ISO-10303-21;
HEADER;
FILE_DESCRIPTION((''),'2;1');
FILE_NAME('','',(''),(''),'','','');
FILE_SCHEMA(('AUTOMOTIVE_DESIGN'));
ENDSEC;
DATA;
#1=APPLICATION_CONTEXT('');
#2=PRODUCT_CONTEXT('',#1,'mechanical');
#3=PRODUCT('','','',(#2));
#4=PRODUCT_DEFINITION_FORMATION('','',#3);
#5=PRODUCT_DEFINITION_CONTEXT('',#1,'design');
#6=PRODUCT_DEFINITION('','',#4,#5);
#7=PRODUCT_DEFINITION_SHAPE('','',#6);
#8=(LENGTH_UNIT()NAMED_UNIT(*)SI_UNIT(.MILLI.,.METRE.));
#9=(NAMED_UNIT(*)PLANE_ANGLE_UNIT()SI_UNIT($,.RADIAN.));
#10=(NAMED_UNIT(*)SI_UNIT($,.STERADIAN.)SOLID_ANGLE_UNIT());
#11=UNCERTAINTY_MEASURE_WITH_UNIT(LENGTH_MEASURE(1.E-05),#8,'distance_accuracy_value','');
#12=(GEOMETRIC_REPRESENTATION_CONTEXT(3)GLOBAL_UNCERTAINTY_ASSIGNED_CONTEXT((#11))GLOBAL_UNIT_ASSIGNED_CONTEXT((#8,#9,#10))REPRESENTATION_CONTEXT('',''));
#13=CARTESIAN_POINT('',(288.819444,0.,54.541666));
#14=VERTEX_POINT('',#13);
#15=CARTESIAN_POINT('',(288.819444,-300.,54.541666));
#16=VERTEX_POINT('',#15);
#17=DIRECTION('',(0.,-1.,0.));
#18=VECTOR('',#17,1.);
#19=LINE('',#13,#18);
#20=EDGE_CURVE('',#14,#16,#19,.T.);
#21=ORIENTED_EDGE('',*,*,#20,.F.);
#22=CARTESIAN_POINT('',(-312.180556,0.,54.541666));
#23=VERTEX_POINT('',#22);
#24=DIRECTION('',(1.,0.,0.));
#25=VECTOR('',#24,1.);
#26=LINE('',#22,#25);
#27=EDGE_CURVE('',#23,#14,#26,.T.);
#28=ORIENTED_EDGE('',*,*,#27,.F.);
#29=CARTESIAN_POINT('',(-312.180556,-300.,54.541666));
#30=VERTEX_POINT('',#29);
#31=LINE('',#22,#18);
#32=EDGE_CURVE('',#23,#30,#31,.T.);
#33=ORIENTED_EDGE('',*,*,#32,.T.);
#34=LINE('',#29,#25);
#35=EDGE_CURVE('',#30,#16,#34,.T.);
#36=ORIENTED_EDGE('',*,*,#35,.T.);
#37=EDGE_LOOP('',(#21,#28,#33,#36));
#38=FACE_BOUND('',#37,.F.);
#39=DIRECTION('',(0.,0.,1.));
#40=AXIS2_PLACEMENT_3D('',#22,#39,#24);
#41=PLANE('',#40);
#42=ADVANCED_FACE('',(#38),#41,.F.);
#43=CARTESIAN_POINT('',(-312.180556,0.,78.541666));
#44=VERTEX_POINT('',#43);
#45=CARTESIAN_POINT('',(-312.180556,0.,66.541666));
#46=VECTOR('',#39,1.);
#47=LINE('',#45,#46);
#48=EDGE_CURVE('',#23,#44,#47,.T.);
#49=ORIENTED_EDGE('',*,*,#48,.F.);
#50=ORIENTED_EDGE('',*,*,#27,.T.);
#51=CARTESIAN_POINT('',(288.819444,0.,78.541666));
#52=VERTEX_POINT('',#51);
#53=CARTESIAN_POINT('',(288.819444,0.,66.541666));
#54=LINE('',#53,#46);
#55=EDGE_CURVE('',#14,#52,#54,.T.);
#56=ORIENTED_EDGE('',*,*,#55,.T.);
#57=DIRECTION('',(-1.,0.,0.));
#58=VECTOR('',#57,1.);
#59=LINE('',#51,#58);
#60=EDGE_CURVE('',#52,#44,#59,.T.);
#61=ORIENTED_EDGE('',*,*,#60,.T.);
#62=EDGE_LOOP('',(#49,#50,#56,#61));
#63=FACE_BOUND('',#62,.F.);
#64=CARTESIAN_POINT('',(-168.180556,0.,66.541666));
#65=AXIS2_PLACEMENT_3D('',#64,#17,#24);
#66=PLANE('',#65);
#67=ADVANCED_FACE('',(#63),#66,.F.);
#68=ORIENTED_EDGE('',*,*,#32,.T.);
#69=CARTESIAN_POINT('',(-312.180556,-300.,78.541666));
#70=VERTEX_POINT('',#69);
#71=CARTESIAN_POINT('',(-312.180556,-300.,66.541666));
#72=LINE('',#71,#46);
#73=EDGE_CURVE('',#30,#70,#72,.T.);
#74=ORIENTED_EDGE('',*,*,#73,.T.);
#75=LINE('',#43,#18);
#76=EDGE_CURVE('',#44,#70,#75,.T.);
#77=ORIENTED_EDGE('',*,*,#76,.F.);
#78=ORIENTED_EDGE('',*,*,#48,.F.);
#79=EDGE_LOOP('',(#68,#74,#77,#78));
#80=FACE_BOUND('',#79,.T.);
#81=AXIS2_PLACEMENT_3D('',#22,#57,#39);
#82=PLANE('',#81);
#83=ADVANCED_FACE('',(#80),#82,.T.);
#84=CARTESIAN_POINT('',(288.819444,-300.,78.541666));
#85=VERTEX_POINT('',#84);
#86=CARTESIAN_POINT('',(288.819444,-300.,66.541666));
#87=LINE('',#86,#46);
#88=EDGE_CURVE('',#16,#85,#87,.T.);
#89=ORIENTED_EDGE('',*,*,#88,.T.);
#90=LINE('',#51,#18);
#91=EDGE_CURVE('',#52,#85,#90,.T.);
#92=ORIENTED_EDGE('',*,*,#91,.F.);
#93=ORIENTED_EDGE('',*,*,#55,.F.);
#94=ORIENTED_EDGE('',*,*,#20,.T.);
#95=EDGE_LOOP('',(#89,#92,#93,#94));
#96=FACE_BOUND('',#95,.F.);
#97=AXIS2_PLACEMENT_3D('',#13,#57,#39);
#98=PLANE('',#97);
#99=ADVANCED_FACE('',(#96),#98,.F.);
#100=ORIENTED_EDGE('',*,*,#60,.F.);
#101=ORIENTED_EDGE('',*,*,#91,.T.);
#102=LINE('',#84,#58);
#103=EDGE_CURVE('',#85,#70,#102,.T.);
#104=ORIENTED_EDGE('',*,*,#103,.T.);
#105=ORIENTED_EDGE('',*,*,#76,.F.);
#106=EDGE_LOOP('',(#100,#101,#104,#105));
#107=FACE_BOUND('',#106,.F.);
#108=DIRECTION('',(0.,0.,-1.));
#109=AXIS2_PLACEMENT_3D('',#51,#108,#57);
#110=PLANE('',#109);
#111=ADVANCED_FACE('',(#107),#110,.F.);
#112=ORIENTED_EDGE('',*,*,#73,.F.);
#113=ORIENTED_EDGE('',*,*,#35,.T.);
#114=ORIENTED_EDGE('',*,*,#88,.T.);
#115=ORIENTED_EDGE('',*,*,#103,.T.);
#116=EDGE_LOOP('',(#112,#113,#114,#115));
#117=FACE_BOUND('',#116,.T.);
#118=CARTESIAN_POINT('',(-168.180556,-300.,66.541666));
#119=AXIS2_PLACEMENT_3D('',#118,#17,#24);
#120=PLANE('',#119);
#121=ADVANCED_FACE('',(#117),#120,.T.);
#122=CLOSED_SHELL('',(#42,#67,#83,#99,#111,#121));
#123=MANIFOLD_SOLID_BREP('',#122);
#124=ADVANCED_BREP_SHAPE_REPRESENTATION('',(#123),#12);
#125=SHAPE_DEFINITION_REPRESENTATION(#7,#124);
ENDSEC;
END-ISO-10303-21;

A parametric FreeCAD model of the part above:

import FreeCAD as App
import Part
import Sketcher
Q = App.Units.Quantity

doc = App.newDocument("Part")
body = doc.addObject("PartDesign::Body", "Body")

sketch1 = doc.addObject("Sketcher::SketchObject", "Sketch")
body.addObject(sketch1)
sketch1.AttachmentSupport = (doc.XZ_Plane, [""])
sketch1.MapMode = "FlatFace"
sketch1.addGeometry(Part.LineSegment(App.Vector(-312, 79, 0), App.Vector(-312, 55, 0)), False)
sketch1.addGeometry(Part.LineSegment(App.Vector(-312, 55, 0), App.Vector(289, 55, 0)), False)
sketch1.addGeometry(Part.LineSegment(App.Vector(289, 55, 0), App.Vector(289, 79, 0)), False)
sketch1.addGeometry(Part.LineSegment(App.Vector(289, 79, 0), App.Vector(-312, 79, 0)), False)
sketch1.addConstraint(Sketcher.Constraint("Coincident", 0, 2, 1, 1))
sketch1.addConstraint(Sketcher.Constraint("Coincident", 1, 2, 2, 1))
sketch1.addConstraint(Sketcher.Constraint("Coincident", 2, 2, 3, 1))
sketch1.addConstraint(Sketcher.Constraint("Coincident", 3, 2, 0, 1))
sketch1.addConstraint(Sketcher.Constraint("Vertical", 0))
sketch1.addConstraint(Sketcher.Constraint("Horizontal", 1))
sketch1.addConstraint(Sketcher.Constraint("Vertical", 2))
sketch1.addConstraint(Sketcher.Constraint("Horizontal", 3))
sketch1.addConstraint(Sketcher.Constraint("DistanceX", 1, 1, 1, 2, Q("601 mm")))
sketch1.addConstraint(Sketcher.Constraint("DistanceY", 0, 2, 0, 1, Q("24 mm")))
sketch1.addConstraint(Sketcher.Constraint("DistanceX", 0, 2, -1, 1, Q("312.180556 mm")))
sketch1.addConstraint(Sketcher.Constraint("DistanceY", -1, 1, 0, 2, Q("54.541666 mm")))
pad1 = doc.addObject("PartDesign::Pad", "Pad")
body.addObject(pad1)
pad1.Profile = sketch1
pad1.Length = 300

doc.recompute()
